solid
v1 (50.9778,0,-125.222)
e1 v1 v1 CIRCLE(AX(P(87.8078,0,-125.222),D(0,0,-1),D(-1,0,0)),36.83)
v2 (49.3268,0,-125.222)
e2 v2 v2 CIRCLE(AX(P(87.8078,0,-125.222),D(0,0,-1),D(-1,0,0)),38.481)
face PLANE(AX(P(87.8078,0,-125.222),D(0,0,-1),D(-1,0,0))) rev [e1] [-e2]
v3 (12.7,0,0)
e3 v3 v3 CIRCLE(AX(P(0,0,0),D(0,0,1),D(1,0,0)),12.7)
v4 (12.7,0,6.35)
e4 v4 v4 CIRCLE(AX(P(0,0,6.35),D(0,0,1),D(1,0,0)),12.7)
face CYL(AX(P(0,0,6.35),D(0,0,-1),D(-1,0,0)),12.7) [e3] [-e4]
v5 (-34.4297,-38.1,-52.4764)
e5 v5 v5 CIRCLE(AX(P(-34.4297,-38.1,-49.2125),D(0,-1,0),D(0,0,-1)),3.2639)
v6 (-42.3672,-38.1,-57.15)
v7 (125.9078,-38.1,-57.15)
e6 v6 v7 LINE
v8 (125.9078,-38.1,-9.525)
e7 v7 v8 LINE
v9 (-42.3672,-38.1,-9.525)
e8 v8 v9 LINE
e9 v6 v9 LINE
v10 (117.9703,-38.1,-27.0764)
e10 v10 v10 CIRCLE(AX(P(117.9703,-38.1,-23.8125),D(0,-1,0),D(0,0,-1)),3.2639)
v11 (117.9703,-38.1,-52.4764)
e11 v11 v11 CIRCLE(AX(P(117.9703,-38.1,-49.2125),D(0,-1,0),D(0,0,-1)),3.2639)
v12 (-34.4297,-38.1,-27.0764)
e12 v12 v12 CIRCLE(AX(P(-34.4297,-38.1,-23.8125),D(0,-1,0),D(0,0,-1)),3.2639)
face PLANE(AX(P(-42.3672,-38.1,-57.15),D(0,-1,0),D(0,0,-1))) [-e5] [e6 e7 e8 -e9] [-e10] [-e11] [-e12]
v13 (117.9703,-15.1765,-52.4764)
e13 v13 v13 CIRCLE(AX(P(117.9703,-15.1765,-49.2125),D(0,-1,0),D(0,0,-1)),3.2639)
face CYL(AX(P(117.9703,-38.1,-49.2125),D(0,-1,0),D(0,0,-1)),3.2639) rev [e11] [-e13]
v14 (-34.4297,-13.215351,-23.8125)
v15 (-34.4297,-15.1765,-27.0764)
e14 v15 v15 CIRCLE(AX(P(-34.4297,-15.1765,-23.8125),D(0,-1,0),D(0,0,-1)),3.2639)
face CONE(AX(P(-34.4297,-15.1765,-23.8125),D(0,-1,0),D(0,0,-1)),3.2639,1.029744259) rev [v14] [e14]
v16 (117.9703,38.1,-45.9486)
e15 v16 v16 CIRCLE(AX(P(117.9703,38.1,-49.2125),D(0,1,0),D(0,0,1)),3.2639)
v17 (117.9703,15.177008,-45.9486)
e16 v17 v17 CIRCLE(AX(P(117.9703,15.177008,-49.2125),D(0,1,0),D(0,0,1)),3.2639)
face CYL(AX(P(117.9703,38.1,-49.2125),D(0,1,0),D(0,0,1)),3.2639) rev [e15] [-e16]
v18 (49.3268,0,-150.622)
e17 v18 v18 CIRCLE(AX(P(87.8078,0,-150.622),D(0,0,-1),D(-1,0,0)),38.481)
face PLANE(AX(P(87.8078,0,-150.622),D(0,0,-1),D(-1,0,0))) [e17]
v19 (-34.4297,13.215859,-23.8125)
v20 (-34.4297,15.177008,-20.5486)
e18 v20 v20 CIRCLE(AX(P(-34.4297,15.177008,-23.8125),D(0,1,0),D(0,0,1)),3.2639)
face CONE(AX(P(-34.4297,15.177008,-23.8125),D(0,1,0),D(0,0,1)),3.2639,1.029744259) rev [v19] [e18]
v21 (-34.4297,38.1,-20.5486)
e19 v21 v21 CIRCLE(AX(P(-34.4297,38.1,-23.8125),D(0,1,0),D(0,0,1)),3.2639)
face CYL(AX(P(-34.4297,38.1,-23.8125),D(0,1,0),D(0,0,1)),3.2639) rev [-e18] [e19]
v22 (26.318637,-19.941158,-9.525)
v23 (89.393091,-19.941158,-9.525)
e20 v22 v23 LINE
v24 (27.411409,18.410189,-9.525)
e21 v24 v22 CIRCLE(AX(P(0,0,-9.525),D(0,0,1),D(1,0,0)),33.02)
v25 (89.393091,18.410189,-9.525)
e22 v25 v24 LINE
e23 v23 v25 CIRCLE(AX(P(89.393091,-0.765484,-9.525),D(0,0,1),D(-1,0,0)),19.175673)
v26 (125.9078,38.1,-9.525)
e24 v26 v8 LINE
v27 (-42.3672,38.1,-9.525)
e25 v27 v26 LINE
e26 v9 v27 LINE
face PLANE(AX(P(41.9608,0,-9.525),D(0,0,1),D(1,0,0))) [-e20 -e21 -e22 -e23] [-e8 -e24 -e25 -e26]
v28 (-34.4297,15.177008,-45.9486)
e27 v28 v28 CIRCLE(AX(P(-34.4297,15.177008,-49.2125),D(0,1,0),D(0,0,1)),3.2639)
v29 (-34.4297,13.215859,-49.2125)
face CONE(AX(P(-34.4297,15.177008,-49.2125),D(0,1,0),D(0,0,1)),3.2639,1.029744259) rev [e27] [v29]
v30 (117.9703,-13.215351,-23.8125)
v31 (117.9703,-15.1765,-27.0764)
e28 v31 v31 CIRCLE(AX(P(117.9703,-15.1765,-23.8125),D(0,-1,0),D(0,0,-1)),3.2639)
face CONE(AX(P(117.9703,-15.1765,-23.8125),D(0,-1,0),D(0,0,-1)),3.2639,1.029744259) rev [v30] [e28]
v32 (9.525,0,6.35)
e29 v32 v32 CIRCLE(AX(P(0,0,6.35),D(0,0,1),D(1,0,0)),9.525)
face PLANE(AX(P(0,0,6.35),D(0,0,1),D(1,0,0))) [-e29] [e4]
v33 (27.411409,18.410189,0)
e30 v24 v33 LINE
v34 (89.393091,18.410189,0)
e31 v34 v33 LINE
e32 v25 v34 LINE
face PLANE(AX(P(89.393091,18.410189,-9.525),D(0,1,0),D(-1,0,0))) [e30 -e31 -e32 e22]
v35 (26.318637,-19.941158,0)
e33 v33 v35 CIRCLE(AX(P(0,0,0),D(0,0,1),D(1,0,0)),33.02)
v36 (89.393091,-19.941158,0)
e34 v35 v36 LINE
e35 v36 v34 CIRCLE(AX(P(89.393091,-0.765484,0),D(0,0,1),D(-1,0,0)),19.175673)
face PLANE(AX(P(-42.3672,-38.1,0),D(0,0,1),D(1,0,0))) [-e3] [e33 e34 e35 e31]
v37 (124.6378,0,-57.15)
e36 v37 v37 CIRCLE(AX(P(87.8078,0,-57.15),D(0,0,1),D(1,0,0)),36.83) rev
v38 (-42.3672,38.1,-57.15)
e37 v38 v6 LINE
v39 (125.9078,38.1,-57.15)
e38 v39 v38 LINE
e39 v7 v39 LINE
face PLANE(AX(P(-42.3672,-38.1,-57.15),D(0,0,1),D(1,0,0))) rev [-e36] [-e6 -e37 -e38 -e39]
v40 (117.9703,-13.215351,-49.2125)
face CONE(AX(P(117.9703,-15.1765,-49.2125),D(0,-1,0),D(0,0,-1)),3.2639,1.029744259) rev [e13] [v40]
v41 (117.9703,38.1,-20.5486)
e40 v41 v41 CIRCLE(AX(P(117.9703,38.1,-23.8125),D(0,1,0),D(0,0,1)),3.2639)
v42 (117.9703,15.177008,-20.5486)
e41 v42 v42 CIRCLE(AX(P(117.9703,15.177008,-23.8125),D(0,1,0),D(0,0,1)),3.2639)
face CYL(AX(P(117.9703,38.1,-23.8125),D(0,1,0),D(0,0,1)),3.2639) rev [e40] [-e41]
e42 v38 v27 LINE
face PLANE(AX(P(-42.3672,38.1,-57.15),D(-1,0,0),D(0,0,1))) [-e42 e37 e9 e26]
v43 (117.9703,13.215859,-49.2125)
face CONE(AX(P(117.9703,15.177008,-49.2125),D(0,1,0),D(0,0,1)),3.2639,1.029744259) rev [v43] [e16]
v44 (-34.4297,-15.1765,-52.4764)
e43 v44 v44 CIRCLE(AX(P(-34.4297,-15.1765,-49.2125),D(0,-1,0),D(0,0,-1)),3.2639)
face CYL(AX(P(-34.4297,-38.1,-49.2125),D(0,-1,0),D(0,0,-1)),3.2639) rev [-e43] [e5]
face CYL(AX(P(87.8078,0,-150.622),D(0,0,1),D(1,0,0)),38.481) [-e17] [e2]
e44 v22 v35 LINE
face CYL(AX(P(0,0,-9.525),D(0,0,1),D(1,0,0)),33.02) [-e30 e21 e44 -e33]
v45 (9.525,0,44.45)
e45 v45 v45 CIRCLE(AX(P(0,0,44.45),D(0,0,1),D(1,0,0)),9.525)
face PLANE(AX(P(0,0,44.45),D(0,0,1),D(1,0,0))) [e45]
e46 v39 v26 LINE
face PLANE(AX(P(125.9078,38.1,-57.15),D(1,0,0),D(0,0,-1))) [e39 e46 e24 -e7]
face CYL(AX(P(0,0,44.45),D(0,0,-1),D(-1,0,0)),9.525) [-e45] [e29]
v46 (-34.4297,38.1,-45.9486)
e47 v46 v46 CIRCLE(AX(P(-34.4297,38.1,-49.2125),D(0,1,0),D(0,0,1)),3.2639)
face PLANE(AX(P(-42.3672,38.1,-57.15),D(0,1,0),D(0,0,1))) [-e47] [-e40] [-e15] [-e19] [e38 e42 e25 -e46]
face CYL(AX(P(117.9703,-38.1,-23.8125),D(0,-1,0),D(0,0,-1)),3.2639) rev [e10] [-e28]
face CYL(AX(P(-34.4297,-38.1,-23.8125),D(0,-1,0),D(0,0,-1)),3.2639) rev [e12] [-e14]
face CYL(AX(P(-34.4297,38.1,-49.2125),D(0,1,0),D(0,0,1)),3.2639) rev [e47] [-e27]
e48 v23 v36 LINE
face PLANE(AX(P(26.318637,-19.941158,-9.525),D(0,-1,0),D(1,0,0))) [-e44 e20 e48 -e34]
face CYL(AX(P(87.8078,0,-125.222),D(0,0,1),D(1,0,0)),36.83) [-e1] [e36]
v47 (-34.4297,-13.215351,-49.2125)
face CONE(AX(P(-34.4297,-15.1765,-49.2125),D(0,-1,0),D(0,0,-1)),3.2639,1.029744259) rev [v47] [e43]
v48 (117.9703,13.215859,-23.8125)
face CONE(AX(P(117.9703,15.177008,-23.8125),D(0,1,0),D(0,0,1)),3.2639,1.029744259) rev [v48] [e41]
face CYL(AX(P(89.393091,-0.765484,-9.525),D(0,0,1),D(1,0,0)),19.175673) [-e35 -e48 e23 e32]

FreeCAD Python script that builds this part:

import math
import FreeCAD as App
import Part
import Sketcher
Q = App.Units.Quantity


def add_polygon(sketch, points):
    """Adds a closed chain of lines whose ends are joined by coincident constraints."""
    first, n = sketch.GeometryCount, len(points)
    for a, b in zip(points, points[1:] + points[:1]):
        sketch.addGeometry(Part.LineSegment(App.Vector(*a, 0), App.Vector(*b, 0)), False)
    for i in range(n):
        sketch.addConstraint(Sketcher.Constraint("Coincident", first + i, 2, first + (i + 1) % n, 1))

doc = App.newDocument("Part")
body = doc.addObject("PartDesign::Body", "Body")

# Sketch on XY plane
sketch1 = body.newObject("Sketcher::SketchObject", "Sketch")
sketch1.AttachmentSupport = (doc.getObject("XY_Plane"), [""])
sketch1.MapMode = "FlatFace"
add_polygon(sketch1, [(-42.3672, 38.1), (-42.3672, -38.1), (125.9078, -38.1), (125.9078, 38.1)])  # lines 0-3
sketch1.addConstraint([
    Sketcher.Constraint("Vertical", 0),
    Sketcher.Constraint("Horizontal", 1),
    Sketcher.Constraint("Vertical", 2),
    Sketcher.Constraint("Horizontal", 3),
    Sketcher.Constraint("DistanceY", 0, 2, 0, 1, Q("3 in")),
    Sketcher.Constraint("DistanceY", 0, 2, -1, 1, Q("1.5 in")),
    Sketcher.Constraint("DistanceX", 1, 1, 1, 2, Q("6.625 in")),
    Sketcher.Constraint("DistanceX", 0, 2, -1, 1, Q("1.668 in")),
])
pad1 = body.newObject("PartDesign::Pad", "Pad")
pad1.Profile = sketch1
pad1.Length = Q("2.25 in")
pad1.Reversed = True

# Sketch on XY plane
sketch2 = body.newObject("Sketcher::SketchObject", "Sketch001")
sketch2.AttachmentSupport = (doc.getObject("XY_Plane"), [""])
sketch2.MapMode = "FlatFace"
sketch2.addGeometry(Part.Circle(App.Vector(0, 0, 0), App.Vector(0, 0, 1), 12.7), False)
sketch2.addConstraint([
    Sketcher.Constraint("Coincident", 0, 3, -1, 1),
    Sketcher.Constraint("Diameter", 0, Q("1 in")),
])
pad2 = body.newObject("PartDesign::Pad", "Pad001")
pad2.Profile = sketch2
pad2.Length = Q("0.25 in")

# Sketch on XY plane
sketch3 = body.newObject("Sketcher::SketchObject", "Sketch002")
sketch3.AttachmentSupport = (doc.getObject("XY_Plane"), [""])
sketch3.MapMode = "FlatFace"
sketch3.AttachmentOffset = App.Placement(App.Vector(0, 0, 0.25 * 25.4), App.Rotation())
sketch3.addGeometry(Part.Circle(App.Vector(0, 0, 0), App.Vector(0, 0, 1), 9.525), False)
sketch3.addConstraint([
    Sketcher.Constraint("Coincident", 0, 3, -1, 1),
    Sketcher.Constraint("Diameter", 0, Q("0.75 in")),
])
pad3 = body.newObject("PartDesign::Pad", "Pad002")
pad3.Profile = sketch3
pad3.Length = Q("1.5 in")

# Sketch on XZ plane
sketch4 = body.newObject("Sketcher::SketchObject", "Sketch003")
sketch4.AttachmentSupport = (doc.getObject("XZ_Plane"), [""])
sketch4.MapMode = "FlatFace"
sketch4.AttachmentOffset = App.Placement(App.Vector(0, 0, 1.5 * 25.4), App.Rotation())
sketch4.addGeometry([
    Part.Circle(App.Vector(-34.4297, -23.8125, 0), App.Vector(0, 0, 1), 3.2639),
    Part.Circle(App.Vector(-34.4297, -49.2125, 0), App.Vector(0, 0, 1), 3.2639),
    Part.Circle(App.Vector(117.9703, -49.2125, 0), App.Vector(0, 0, 1), 3.2639),
    Part.Circle(App.Vector(117.9703, -23.8125, 0), App.Vector(0, 0, 1), 3.2639),
], False)
sketch4.addConstraint([
    Sketcher.Constraint("Equal", 0, 1),
    Sketcher.Constraint("Equal", 1, 2),
    Sketcher.Constraint("Equal", 2, 3),
    Sketcher.Constraint("Horizontal", 1, 3, 2, 3),
    Sketcher.Constraint("Horizontal", 0, 3, 3, 3),
    Sketcher.Constraint("Vertical", 0, 3, 1, 3),
    Sketcher.Constraint("Vertical", 2, 3, 3, 3),
    Sketcher.Constraint("Diameter", 0, Q("0.257 in")),
    Sketcher.Constraint("DistanceY", 1, 3, 0, 3, Q("1 in")),
    Sketcher.Constraint("DistanceX", 1, 3, 2, 3, Q("6 in")),
    Sketcher.Constraint("DistanceY", 0, 3, -1, 1, Q("0.9375 in")),
    Sketcher.Constraint("DistanceX", 0, 3, -1, 1, Q("1.3555 in")),
])
doc.recompute()
hole = body.newObject("PartDesign::Hole", "Hole")
hole.Profile = sketch4
hole.ThreadType = "None"
hole.Diameter = Q("0.257 in")
hole.DepthType = "Dimension"
hole.Depth = Q("0.9025 in")
hole.DrillPoint = "Angled"
hole.DrillPointAngle = 118

# Sketch on XY plane
sketch5 = body.newObject("Sketcher::SketchObject", "Sketch004")
sketch5.AttachmentSupport = (doc.getObject("XY_Plane"), [""])
sketch5.MapMode = "FlatFace"
sketch5.AttachmentOffset = App.Placement(App.Vector(0, 0, -2.25 * 25.4), App.Rotation())
sketch5.addGeometry(Part.Circle(App.Vector(87.8078, 0, 0), App.Vector(0, 0, 1), 36.83), False)
sketch5.addConstraint([
    Sketcher.Constraint("PointOnObject", 0, 3, -1),
    Sketcher.Constraint("Diameter", 0, Q("2.9 in")),
    Sketcher.Constraint("DistanceX", -1, 1, 0, 3, Q("3.457 in")),
])
pad4 = body.newObject("PartDesign::Pad", "Pad003")
pad4.Profile = sketch5
pad4.Length = Q("2.68 in")
pad4.Reversed = True

# Sketch on XY plane
sketch6 = body.newObject("Sketcher::SketchObject", "Sketch005")
sketch6.AttachmentSupport = (doc.getObject("XY_Plane"), [""])
sketch6.MapMode = "FlatFace"
sketch6.AttachmentOffset = App.Placement(App.Vector(0, 0, -4.93 * 25.4), App.Rotation())
sketch6.addGeometry(Part.Circle(App.Vector(87.8078, 0, 0), App.Vector(0, 0, 1), 38.481), False)
sketch6.addConstraint([
    Sketcher.Constraint("PointOnObject", 0, 3, -1),
    Sketcher.Constraint("Diameter", 0, Q("3.03 in")),
    Sketcher.Constraint("DistanceX", -1, 1, 0, 3, Q("3.457 in")),
])
pad5 = body.newObject("PartDesign::Pad", "Pad004")
pad5.Profile = sketch6
pad5.Length = Q("1 in")
pad5.Reversed = True

# Sketch on XZ plane
sketch7 = body.newObject("Sketcher::SketchObject", "Sketch006")
sketch7.AttachmentSupport = (doc.getObject("XZ_Plane"), [""])
sketch7.MapMode = "FlatFace"
sketch7.AttachmentOffset = App.Placement(App.Vector(0, 0, -1.5 * 25.4), App.Rotation())
sketch7.addGeometry([
    Part.Circle(App.Vector(-34.4297, -23.8125, 0), App.Vector(0, 0, 1), 3.2639),
    Part.Circle(App.Vector(-34.4297, -49.2125, 0), App.Vector(0, 0, 1), 3.2639),
    Part.Circle(App.Vector(117.9703, -49.2125, 0), App.Vector(0, 0, 1), 3.2639),
    Part.Circle(App.Vector(117.9703, -23.8125, 0), App.Vector(0, 0, 1), 3.2639),
], False)
sketch7.addConstraint([
    Sketcher.Constraint("Equal", 0, 1),
    Sketcher.Constraint("Equal", 1, 2),
    Sketcher.Constraint("Equal", 2, 3),
    Sketcher.Constraint("Horizontal", 1, 3, 2, 3),
    Sketcher.Constraint("Horizontal", 0, 3, 3, 3),
    Sketcher.Constraint("Vertical", 0, 3, 1, 3),
    Sketcher.Constraint("Vertical", 2, 3, 3, 3),
    Sketcher.Constraint("Diameter", 0, Q("0.257 in")),
    Sketcher.Constraint("DistanceY", 1, 3, 0, 3, Q("1 in")),
    Sketcher.Constraint("DistanceX", 1, 3, 2, 3, Q("6 in")),
    Sketcher.Constraint("DistanceY", 0, 3, -1, 1, Q("0.9375 in")),
    Sketcher.Constraint("DistanceX", 0, 3, -1, 1, Q("1.3555 in")),
])
doc.recompute()
hole2 = body.newObject("PartDesign::Hole", "Hole001")
hole2.Profile = sketch7
hole2.ThreadType = "None"
hole2.Diameter = Q("0.257 in")
hole2.DepthType = "Dimension"
hole2.Depth = 22.922992
hole2.DrillPoint = "Angled"
hole2.DrillPointAngle = 118
hole2.Reversed = True

# Sketch on XY plane
sketch8 = body.newObject("Sketcher::SketchObject", "Sketch007")
sketch8.AttachmentSupport = (doc.getObject("XY_Plane"), [""])
sketch8.MapMode = "FlatFace"
add_polygon(sketch8, [(-70.278, 66.392), (-70.278, -66.392), (154.2, -66.392), (154.2, 66.392)])  # lines 0-3
sketch8.addGeometry(Part.LineSegment(App.Vector(27.411409, 18.410189, 0), App.Vector(89.393091, 18.410189, 0)), False)  # 4
sketch8.addGeometry(Part.ArcOfCircle(Part.Circle(App.Vector(89.393091, -0.765484, 0), App.Vector(0, 0, 1), 19.175673), math.radians(-90), math.radians(90)), False)  # 5
sketch8.addGeometry(Part.LineSegment(App.Vector(89.393091, -19.941158, 0), App.Vector(26.318637, -19.941158, 0)), False)  # 6
sketch8.addGeometry(Part.ArcOfCircle(Part.Circle(App.Vector(0, 0, 0), App.Vector(0, 0, 1), 33.02), math.radians(33.886299), math.radians(322.849445)), False)  # 7
sketch8.addConstraint([
    Sketcher.Constraint("Tangent", 4, 2, 5, 2),
    Sketcher.Constraint("Tangent", 5, 1, 6, 1),
    Sketcher.Constraint("Coincident", 6, 2, 7, 2),
    Sketcher.Constraint("Coincident", 7, 1, 4, 1),
    Sketcher.Constraint("Vertical", 0),
    Sketcher.Constraint("Horizontal", 1),
    Sketcher.Constraint("Vertical", 2),
    Sketcher.Constraint("Horizontal", 3),
    Sketcher.Constraint("Horizontal", 4),
    Sketcher.Constraint("Horizontal", 6),
    Sketcher.Constraint("Coincident", 7, 3, -1, 1),
    Sketcher.Constraint("Radius", 7, Q("1.3 in")),
    Sketcher.Constraint("DistanceX", 1, 1, 1, 2, 224.478),
    Sketcher.Constraint("DistanceY", 0, 2, 0, 1, 132.784),
    Sketcher.Constraint("Radius", 5, 19.175673),
    Sketcher.Constraint("DistanceX", 4, 1, 4, 2, 61.981682),
    Sketcher.Constraint("DistanceX", 0, 2, -1, 1, 70.278),
    Sketcher.Constraint("DistanceY", 0, 2, -1, 1, 66.392),
    Sketcher.Constraint("DistanceX", 6, 2, 6, 1, 63.074454),
])
pocket1 = body.newObject("PartDesign::Pocket", "Pocket")
pocket1.Profile = sketch8
pocket1.Length = Q("0.375 in")

doc.recompute()
